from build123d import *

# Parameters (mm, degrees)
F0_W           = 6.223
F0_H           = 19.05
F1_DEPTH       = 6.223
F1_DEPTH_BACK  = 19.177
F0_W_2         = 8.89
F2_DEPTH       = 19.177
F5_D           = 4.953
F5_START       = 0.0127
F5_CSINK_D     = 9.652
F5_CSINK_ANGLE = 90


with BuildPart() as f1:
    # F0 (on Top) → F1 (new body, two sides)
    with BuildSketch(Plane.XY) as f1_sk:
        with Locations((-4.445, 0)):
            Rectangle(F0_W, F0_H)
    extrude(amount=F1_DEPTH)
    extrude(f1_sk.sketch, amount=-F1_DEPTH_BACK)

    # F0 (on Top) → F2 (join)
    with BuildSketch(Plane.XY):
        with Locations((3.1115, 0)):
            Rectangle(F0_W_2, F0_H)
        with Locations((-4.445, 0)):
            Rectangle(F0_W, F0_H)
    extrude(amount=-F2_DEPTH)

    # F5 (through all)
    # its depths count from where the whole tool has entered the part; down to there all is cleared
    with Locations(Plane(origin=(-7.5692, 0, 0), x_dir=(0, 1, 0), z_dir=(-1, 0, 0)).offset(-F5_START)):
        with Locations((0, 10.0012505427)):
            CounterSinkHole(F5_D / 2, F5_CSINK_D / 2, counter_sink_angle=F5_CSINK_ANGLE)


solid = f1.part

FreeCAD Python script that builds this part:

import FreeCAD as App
import Part
import Sketcher
Q = App.Units.Quantity


def add_polygon(sketch, points):
    """Adds a closed chain of lines whose ends are joined by coincident constraints."""
    first, n = sketch.GeometryCount, len(points)
    for a, b in zip(points, points[1:] + points[:1]):
        sketch.addGeometry(Part.LineSegment(App.Vector(*a, 0), App.Vector(*b, 0)), False)
    for i in range(n):
        sketch.addConstraint(Sketcher.Constraint("Coincident", first + i, 2, first + (i + 1) % n, 1))

doc = App.newDocument("Part")
body = doc.addObject("PartDesign::Body", "Body")

# Sketch on XY plane
sketch1 = doc.addObject("Sketcher::SketchObject", "Sketch")
body.addObject(sketch1)
sketch1.AttachmentSupport = (doc.XY_Plane, [""])
sketch1.MapMode = "FlatFace"
add_polygon(sketch1, [(-7.5565, 9.525), (-7.5565, -9.525), (-1.3335, -9.525), (-1.3335, 9.525)])  # lines 0-3
sketch1.addConstraint([
    Sketcher.Constraint("Vertical", 0),
    Sketcher.Constraint("Horizontal", 1),
    Sketcher.Constraint("Vertical", 2),
    Sketcher.Constraint("Horizontal", 3),
    Sketcher.Constraint("DistanceY", 0, 2, 0, 1, Q("0.75 in")),
    Sketcher.Constraint("DistanceX", 1, 1, 1, 2, Q("0.245 in")),
    Sketcher.Constraint("DistanceY", 0, 2, -1, 1, Q("0.375 in")),
    Sketcher.Constraint("DistanceX", 0, 2, -1, 1, Q("0.2975 in")),
])
pad1 = doc.addObject("PartDesign::Pad", "Pad")
body.addObject(pad1)
pad1.Profile = sketch1
pad1.Type = "TwoLengths"
pad1.Length = Q("0.245 in")
pad1.Length2 = Q("0.755 in")

# Sketch on XY plane
sketch2 = doc.addObject("Sketcher::SketchObject", "Sketch001")
body.addObject(sketch2)
sketch2.AttachmentSupport = (doc.XY_Plane, [""])
sketch2.MapMode = "FlatFace"
add_polygon(sketch2, [(7.5565, -9.525), (7.5565, 9.525), (-7.5565, 9.525), (-7.5565, -9.525)])  # lines 0-3
sketch2.addConstraint([
    Sketcher.Constraint("Vertical", 0),
    Sketcher.Constraint("Horizontal", 1),
    Sketcher.Constraint("Vertical", 2),
    Sketcher.Constraint("Horizontal", 3),
    Sketcher.Constraint("Symmetric", 0, 2, 2, 2, -1, 1),
    Sketcher.Constraint("DistanceY", 0, 1, 0, 2, Q("0.75 in")),
    Sketcher.Constraint("DistanceX", 1, 2, 1, 1, Q("0.595 in")),
])
pad2 = doc.addObject("PartDesign::Pad", "Pad001")
body.addObject(pad2)
pad2.Profile = sketch2
pad2.Length = Q("0.755 in")
pad2.Reversed = True

# Sketch on YZ plane
sketch3 = doc.addObject("Sketcher::SketchObject", "Sketch002")
body.addObject(sketch3)
sketch3.AttachmentSupport = (doc.YZ_Plane, [""])
sketch3.MapMode = "FlatFace"
sketch3.AttachmentOffset = App.Placement(App.Vector(0, 0, -0.2975 * 25.4), App.Rotation())
sketch3.addGeometry(Part.Circle(App.Vector(0, -10.001251, 0), App.Vector(0, 0, 1), 2.4765), False)
sketch3.addConstraint([
    Sketcher.Constraint("PointOnObject", 0, 3, -2),
    Sketcher.Constraint("Diameter", 0, Q("0.195 in")),
    Sketcher.Constraint("DistanceY", 0, 3, -1, 1, Q("10.001251 mm")),
])
doc.recompute()
hole = doc.addObject("PartDesign::Hole", "Hole")
body.addObject(hole)
hole.Profile = sketch3
hole.ThreadType = "None"
hole.Diameter = Q("0.195 in")
hole.DepthType = "ThroughAll"
hole.HoleCutType = "Countersink"
hole.HoleCutDiameter = Q("0.38 in")
hole.HoleCutCountersinkAngle = 90
hole.Reversed = True

doc.recompute()
